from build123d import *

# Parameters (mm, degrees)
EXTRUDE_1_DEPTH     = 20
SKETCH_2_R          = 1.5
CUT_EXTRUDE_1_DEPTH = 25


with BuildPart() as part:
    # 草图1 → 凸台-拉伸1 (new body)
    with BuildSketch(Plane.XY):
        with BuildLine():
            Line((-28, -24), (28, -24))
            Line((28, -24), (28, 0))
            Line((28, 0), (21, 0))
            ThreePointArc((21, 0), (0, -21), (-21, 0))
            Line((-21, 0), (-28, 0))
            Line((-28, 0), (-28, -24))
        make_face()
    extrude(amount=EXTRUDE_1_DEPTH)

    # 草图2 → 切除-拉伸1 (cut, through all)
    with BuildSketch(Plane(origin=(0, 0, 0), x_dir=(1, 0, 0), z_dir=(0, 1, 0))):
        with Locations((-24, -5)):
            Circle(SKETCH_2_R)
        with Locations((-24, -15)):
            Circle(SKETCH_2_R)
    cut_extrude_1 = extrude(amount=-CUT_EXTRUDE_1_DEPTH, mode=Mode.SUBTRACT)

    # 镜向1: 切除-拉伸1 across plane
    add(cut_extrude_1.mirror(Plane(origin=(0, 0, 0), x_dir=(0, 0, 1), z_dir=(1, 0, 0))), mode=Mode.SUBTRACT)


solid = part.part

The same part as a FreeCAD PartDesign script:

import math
import FreeCAD as App
import Part
import Sketcher

V = App.Vector
Q = App.Units.Quantity

doc = App.newDocument("Part")
body = doc.addObject("PartDesign::Body", "Body")

sketch1 = body.newObject("Sketcher::SketchObject", "Sketch")
sketch1.AttachmentSupport = (doc.getObject("XY_Plane"), [""])
sketch1.MapMode = "FlatFace"
sketch1.addGeometry([
    Part.LineSegment(V(-28, -24, 0), V(28, -24, 0)),
    Part.LineSegment(V(28, -24, 0), V(28, 0, 0)),
    Part.LineSegment(V(28, 0, 0), V(21, 0, 0)),
    Part.ArcOfCircle(Part.Circle(V(0, 0, 0), V(0, 0, 1), 21), math.radians(180), math.radians(360)),
    Part.LineSegment(V(-21, 0, 0), V(-28, 0, 0)),
    Part.LineSegment(V(-28, 0, 0), V(-28, -24, 0)),
], False)
sketch1.addConstraint([
    Sketcher.Constraint("Coincident", 0, 2, 1, 1),
    Sketcher.Constraint("Coincident", 1, 2, 2, 1),
    Sketcher.Constraint("Coincident", 2, 2, 3, 2),
    Sketcher.Constraint("Coincident", 3, 1, 4, 1),
    Sketcher.Constraint("Coincident", 4, 2, 5, 1),
    Sketcher.Constraint("Coincident", 5, 2, 0, 1),
    Sketcher.Constraint("Horizontal", 0),
    Sketcher.Constraint("Vertical", 1),
    Sketcher.Constraint("Horizontal", 2),
    Sketcher.Constraint("Horizontal", 4),
    Sketcher.Constraint("Vertical", 5),
    Sketcher.Constraint("Coincident", 3, 3, -1, 1),
    Sketcher.Constraint("Symmetric", 1, 2, 4, 2, -1, 1),
    Sketcher.Constraint("PointOnObject", 1, 2, -1),
    Sketcher.Constraint("Radius", 3, Q("21 mm")),
    Sketcher.Constraint("DistanceX", 0, 1, 0, 2, Q("56 mm")),
    Sketcher.Constraint("DistanceY", 1, 1, 1, 2, Q("24 mm")),
])
pad1 = body.newObject("PartDesign::Pad", "Pad")
pad1.Profile = sketch1
pad1.Length = 20

sketch2 = body.newObject("Sketcher::SketchObject", "Sketch001")
sketch2.AttachmentSupport = (doc.getObject("XZ_Plane"), [""])
sketch2.MapMode = "FlatFace"
sketch2.addGeometry([
    Part.Circle(V(-24, 5, 0), V(0, 0, 1), 1.5),
    Part.Circle(V(-24, 15, 0), V(0, 0, 1), 1.5),
], False)
sketch2.addConstraint([
    Sketcher.Constraint("Equal", 0, 1),
    Sketcher.Constraint("Vertical", 0, 3, 1, 3),
    Sketcher.Constraint("Diameter", 0, Q("3 mm")),
    Sketcher.Constraint("DistanceX", 0, 3, -1, 1, Q("24 mm")),
    Sketcher.Constraint("DistanceY", -1, 1, 0, 3, Q("5 mm")),
    Sketcher.Constraint("DistanceY", -1, 1, 1, 3, Q("15 mm")),
])
pocket1 = body.newObject("PartDesign::Pocket", "Pocket")
pocket1.Profile = sketch2
pocket1.Type = "ThroughAll"
pocket1.Reversed = True
doc.recompute()

mirrored = body.newObject("PartDesign::Mirrored", "Mirrored")
mirrored.Originals = [pocket1]
mirrored.MirrorPlane = (doc.getObject("YZ_Plane"), [""])
body.Tip = mirrored

doc.recompute()
